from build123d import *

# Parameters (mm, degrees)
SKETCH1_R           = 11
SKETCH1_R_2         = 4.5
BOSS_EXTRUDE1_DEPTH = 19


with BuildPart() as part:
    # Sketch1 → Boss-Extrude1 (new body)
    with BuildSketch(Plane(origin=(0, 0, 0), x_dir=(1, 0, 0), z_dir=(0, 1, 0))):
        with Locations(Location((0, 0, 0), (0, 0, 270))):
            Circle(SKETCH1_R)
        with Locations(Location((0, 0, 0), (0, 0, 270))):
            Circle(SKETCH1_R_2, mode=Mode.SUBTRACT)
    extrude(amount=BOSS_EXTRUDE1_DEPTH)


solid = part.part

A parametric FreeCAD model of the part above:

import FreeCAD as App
import Part
import Sketcher

doc = App.newDocument("Part")
body = doc.addObject("PartDesign::Body", "Body")

# Sketch on XZ plane
sketch1 = body.newObject("Sketcher::SketchObject", "Sketch")
sketch1.AttachmentSupport = (doc.getObject("XZ_Plane"), [""])
sketch1.MapMode = "FlatFace"
sketch1.addGeometry(Part.Circle(App.Vector(0, 0, 0), App.Vector(0, 0, 1), 11), False)
sketch1.addGeometry(Part.Circle(App.Vector(0, 0, 0), App.Vector(0, 0, 1), 4.5), False)
sketch1.addConstraint(Sketcher.Constraint("Coincident", 0, 3, -1, 1))
sketch1.addConstraint(Sketcher.Constraint("Coincident", 1, 3, -1, 1))
sketch1.addConstraint(Sketcher.Constraint("Diameter", 0, 22.0))
sketch1.addConstraint(Sketcher.Constraint("Diameter", 1, 9.0))
pad1 = body.newObject("PartDesign::Pad", "Pad")
pad1.Profile = sketch1
pad1.Length = 19
pad1.Reversed = True

doc.recompute()
